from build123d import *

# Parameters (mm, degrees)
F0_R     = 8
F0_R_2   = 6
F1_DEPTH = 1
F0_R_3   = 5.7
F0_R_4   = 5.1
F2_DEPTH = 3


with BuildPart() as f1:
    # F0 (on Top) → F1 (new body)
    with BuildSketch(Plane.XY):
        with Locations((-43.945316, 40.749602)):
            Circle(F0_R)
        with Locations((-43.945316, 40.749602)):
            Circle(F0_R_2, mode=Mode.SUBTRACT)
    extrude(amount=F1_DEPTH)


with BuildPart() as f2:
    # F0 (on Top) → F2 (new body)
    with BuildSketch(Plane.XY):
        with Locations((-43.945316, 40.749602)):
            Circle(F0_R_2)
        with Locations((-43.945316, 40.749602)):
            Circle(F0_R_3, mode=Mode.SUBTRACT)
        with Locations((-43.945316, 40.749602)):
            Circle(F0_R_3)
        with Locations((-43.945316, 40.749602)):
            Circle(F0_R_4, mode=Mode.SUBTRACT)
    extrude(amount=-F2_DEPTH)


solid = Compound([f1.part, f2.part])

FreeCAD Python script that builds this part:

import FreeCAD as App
import Part
import Sketcher
Q = App.Units.Quantity

doc = App.newDocument("Part")
body = doc.addObject("PartDesign::Body", "Body")

# Sketch on XY plane
sketch1 = doc.addObject("Sketcher::SketchObject", "Sketch")
body.addObject(sketch1)
sketch1.AttachmentSupport = (doc.XY_Plane, [""])
sketch1.MapMode = "FlatFace"
sketch1.addGeometry(Part.Circle(App.Vector(-44, 41, 0), App.Vector(0, 0, 1), 8), False)
sketch1.addGeometry(Part.Circle(App.Vector(-44, 41, 0), App.Vector(0, 0, 1), 6), False)
sketch1.addConstraint(Sketcher.Constraint("Coincident", 1, 3, 0, 3))
sketch1.addConstraint(Sketcher.Constraint("Diameter", 0, Q("16 mm")))
sketch1.addConstraint(Sketcher.Constraint("Diameter", 1, Q("12 mm")))
sketch1.addConstraint(Sketcher.Constraint("DistanceX", 0, 3, -1, 1, Q("43.945316 mm")))
sketch1.addConstraint(Sketcher.Constraint("DistanceY", -1, 1, 0, 3, Q("40.749602 mm")))
pad1 = doc.addObject("PartDesign::Pad", "Pad")
body.addObject(pad1)
pad1.Profile = sketch1
pad1.Length = 1
body2 = doc.addObject("PartDesign::Body", "Body001")

# Sketch on XY plane
sketch2 = doc.addObject("Sketcher::SketchObject", "Sketch001")
body2.addObject(sketch2)
sketch2.AttachmentSupport = (doc.getObject("XY_Plane001"), [""])
sketch2.MapMode = "FlatFace"
sketch2.addGeometry(Part.Circle(App.Vector(-44, 41, 0), App.Vector(0, 0, 1), 6), False)
sketch2.addGeometry(Part.Circle(App.Vector(-44, 41, 0), App.Vector(0, 0, 1), 5), False)
sketch2.addConstraint(Sketcher.Constraint("Coincident", 1, 3, 0, 3))
sketch2.addConstraint(Sketcher.Constraint("Diameter", 0, Q("12 mm")))
sketch2.addConstraint(Sketcher.Constraint("Diameter", 1, Q("10.2 mm")))
sketch2.addConstraint(Sketcher.Constraint("DistanceX", 0, 3, -1, 1, Q("43.945316 mm")))
sketch2.addConstraint(Sketcher.Constraint("DistanceY", -1, 1, 0, 3, Q("40.749602 mm")))
pad2 = doc.addObject("PartDesign::Pad", "Pad001")
body2.addObject(pad2)
pad2.Profile = sketch2
pad2.Length = 3
pad2.Reversed = True

doc.recompute()
